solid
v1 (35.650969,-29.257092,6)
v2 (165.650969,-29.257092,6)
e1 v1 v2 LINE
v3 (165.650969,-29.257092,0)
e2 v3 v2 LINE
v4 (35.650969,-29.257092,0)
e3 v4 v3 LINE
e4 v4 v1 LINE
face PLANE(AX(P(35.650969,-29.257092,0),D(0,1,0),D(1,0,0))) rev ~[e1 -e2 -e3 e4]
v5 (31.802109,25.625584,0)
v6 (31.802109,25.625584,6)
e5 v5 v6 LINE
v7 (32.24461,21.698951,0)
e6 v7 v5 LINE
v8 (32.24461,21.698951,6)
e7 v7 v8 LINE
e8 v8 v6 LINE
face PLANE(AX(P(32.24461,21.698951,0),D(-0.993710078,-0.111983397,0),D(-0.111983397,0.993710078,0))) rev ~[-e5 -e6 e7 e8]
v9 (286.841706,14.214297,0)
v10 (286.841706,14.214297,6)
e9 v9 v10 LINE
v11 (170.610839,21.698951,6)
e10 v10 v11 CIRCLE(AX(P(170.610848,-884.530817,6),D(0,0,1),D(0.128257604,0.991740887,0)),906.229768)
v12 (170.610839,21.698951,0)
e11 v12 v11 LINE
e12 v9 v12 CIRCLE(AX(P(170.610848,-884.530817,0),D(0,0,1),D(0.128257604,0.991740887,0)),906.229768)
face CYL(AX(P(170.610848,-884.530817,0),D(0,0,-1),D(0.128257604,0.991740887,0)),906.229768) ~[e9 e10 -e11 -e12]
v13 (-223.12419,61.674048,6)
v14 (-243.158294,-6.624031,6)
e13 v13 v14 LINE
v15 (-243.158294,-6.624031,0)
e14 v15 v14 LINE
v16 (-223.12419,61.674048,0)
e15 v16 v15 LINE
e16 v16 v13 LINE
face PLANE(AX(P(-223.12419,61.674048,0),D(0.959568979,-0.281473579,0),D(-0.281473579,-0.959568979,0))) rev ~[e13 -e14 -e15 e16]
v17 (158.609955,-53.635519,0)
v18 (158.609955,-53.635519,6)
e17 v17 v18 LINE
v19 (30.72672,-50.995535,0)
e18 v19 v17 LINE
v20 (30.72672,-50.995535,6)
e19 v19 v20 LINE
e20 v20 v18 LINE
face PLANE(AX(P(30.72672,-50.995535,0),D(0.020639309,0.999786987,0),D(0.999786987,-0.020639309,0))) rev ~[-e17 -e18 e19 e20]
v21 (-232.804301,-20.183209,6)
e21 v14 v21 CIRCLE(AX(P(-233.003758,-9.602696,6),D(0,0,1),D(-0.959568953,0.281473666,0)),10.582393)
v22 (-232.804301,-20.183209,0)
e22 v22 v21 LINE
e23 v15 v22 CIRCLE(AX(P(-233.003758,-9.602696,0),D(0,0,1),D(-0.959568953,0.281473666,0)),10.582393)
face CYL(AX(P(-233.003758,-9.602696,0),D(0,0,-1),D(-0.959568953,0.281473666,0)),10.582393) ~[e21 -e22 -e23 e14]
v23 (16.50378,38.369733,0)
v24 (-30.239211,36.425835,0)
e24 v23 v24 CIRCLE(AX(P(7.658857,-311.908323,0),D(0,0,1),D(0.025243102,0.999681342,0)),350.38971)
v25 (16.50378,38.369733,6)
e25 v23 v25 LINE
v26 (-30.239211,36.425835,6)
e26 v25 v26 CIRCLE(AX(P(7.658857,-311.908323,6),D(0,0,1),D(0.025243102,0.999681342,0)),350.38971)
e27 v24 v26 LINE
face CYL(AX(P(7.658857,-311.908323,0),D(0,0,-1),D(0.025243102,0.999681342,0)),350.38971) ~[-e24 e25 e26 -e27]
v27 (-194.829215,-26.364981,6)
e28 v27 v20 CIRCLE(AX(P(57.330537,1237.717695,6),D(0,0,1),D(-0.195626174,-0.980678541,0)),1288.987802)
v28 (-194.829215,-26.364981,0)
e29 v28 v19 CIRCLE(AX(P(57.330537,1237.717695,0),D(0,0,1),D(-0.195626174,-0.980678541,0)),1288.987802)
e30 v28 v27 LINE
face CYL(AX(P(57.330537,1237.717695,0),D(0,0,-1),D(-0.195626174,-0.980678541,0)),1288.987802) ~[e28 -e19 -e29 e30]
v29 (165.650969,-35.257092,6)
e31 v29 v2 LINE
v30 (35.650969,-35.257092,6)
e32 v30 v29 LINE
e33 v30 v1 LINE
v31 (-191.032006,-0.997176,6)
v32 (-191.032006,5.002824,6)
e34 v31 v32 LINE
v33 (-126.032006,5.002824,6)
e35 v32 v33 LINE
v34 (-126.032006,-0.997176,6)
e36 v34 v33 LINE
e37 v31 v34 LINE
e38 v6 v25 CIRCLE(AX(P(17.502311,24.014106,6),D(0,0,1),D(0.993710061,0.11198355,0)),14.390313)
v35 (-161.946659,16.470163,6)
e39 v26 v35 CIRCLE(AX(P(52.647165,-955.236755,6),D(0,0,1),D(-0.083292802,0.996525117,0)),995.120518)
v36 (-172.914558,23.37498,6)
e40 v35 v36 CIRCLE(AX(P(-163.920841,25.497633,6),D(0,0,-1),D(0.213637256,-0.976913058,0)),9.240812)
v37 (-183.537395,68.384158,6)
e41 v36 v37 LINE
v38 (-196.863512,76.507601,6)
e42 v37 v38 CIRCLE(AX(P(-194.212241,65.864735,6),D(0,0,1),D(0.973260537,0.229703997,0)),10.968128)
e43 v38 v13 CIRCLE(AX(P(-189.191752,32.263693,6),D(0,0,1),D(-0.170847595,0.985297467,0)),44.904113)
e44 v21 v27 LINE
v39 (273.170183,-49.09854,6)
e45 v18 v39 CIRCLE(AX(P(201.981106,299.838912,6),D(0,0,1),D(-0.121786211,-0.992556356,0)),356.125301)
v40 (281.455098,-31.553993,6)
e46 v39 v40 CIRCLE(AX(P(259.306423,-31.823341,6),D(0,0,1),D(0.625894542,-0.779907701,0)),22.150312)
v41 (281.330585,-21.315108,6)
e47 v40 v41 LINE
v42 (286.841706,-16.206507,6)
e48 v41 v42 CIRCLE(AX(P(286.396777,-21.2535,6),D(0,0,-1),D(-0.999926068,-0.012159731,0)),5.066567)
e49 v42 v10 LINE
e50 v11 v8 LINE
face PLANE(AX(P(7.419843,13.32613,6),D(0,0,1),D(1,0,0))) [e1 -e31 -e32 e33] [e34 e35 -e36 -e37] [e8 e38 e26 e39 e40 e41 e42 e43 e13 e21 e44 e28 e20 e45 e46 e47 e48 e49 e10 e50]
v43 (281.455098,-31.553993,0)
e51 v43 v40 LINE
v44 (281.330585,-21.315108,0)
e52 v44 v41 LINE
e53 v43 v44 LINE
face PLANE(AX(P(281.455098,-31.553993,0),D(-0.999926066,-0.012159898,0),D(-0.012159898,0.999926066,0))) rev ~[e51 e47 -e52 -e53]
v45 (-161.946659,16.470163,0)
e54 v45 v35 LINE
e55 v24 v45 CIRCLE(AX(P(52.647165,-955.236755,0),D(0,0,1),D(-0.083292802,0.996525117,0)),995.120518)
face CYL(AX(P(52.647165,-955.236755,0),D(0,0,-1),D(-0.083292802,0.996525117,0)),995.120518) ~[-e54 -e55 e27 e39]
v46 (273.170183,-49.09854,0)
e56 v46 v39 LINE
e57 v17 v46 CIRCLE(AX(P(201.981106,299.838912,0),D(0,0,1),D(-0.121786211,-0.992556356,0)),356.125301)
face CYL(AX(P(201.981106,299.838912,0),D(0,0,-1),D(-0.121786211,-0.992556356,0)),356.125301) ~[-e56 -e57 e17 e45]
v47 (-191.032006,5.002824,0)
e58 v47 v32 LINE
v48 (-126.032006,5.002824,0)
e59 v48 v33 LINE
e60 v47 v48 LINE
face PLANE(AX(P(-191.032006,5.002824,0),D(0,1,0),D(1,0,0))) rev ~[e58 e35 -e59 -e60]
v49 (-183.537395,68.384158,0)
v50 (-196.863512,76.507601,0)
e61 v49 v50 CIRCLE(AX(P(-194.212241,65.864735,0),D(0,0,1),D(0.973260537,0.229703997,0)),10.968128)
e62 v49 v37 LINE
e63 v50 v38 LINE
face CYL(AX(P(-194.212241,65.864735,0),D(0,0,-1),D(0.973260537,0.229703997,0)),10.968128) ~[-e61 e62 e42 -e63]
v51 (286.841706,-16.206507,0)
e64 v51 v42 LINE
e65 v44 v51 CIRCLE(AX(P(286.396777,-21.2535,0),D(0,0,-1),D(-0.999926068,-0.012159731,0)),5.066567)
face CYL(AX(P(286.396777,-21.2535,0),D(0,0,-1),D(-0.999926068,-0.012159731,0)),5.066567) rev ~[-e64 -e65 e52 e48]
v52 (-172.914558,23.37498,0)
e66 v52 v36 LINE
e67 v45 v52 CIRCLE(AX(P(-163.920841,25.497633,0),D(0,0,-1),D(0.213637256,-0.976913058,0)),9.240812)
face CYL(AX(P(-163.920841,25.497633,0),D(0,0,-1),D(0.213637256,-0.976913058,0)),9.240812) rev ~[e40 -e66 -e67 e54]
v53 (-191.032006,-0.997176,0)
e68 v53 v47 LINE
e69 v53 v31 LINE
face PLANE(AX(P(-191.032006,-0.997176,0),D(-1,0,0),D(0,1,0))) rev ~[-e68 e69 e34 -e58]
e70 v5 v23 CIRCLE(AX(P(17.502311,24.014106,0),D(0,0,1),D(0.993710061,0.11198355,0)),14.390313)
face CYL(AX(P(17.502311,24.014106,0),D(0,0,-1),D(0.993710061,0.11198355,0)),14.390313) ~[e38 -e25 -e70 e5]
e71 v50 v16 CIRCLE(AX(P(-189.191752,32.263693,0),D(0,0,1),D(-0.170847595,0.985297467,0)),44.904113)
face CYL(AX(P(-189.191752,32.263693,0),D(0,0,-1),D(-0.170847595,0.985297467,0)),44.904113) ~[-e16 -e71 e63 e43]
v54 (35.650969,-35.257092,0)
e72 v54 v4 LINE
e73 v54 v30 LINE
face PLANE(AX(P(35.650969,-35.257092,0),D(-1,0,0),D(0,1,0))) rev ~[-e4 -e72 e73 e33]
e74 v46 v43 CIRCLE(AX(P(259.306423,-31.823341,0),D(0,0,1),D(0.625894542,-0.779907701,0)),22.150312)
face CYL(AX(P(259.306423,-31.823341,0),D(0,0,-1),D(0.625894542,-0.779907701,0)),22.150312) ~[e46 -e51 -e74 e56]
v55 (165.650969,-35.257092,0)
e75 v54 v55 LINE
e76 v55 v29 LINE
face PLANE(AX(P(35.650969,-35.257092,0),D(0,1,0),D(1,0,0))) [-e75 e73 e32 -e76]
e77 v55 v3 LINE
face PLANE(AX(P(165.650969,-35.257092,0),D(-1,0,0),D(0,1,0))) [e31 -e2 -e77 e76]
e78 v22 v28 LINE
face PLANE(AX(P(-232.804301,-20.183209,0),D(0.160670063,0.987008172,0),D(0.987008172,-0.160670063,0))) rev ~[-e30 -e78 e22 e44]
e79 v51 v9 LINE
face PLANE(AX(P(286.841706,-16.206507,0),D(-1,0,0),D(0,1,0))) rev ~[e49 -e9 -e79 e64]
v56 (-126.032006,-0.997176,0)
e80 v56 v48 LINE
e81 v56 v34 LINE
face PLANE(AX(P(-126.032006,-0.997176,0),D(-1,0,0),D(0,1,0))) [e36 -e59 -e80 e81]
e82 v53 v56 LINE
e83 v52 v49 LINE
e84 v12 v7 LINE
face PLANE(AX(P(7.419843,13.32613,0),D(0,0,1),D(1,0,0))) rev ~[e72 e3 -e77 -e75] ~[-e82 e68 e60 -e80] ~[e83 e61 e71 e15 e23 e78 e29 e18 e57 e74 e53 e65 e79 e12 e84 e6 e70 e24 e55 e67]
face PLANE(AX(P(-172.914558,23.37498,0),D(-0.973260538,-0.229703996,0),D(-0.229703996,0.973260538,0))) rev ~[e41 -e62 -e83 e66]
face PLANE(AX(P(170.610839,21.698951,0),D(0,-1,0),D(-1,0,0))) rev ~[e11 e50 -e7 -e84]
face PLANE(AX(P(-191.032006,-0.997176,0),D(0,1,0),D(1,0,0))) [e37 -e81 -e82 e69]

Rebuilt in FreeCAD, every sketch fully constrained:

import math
import FreeCAD as App
import Part
import Sketcher

V = App.Vector
Q = App.Units.Quantity


def add_polygon(sketch, points):
    """Adds a closed chain of lines whose ends are joined by coincident constraints."""
    first, n = sketch.GeometryCount, len(points)
    for a, b in zip(points, points[1:] + points[:1]):
        sketch.addGeometry(Part.LineSegment(App.Vector(*a, 0), App.Vector(*b, 0)), False)
    for i in range(n):
        sketch.addConstraint(Sketcher.Constraint("Coincident", first + i, 2, first + (i + 1) % n, 1))

doc = App.newDocument("Part")
body = doc.addObject("PartDesign::Body", "Body")

# Sketch on XY plane
sketch1 = body.newObject("Sketcher::SketchObject", "Sketch")
sketch1.AttachmentSupport = (doc.getObject("XY_Plane"), [""])
sketch1.MapMode = "FlatFace"
sketch1.addGeometry(Part.LineSegment(V(-172.914558, 23.37498, 0), V(-183.537395, 68.384158, 0)), False)  # 0
sketch1.addGeometry(Part.ArcOfCircle(Part.Circle(V(-194.212241, 65.864735, 0), V(0, 0, 1), 10.968128), math.radians(13.279645), math.radians(103.988375)), False)  # 1
sketch1.addGeometry(Part.ArcOfCircle(Part.Circle(V(-189.191752, 32.263693, 0), V(0, 0, 1), 44.904113), math.radians(99.837104), math.radians(139.083454)), False)  # 2
sketch1.addGeometry(Part.LineSegment(V(-223.12419, 61.674048, 0), V(-243.158294, -6.624031, 0)), False)  # 3
sketch1.addGeometry(Part.ArcOfCircle(Part.Circle(V(-233.003758, -9.602696, 0), V(0, 0, 1), 10.582393), math.radians(163.651823), math.radians(271.079977)), False)  # 4
sketch1.addGeometry(Part.LineSegment(V(-232.804301, -20.183209, 0), V(-194.829215, -26.364981, 0)), False)  # 5
sketch1.addGeometry(Part.ArcOfCircle(Part.Circle(V(57.330537, 1237.717695, 0), V(0, 0, 1), 1288.987802), math.radians(-101.281305), math.radians(-91.182629)), False)  # 6
sketch1.addGeometry(Part.LineSegment(V(30.72672, -50.995535, 0), V(158.609955, -53.635519, 0)), False)  # 7
sketch1.addGeometry(Part.ArcOfCircle(Part.Circle(V(201.981106, 299.838912, 0), V(0, 0, 1), 356.125301), math.radians(-96.995201), math.radians(-78.468949)), False)  # 8
sketch1.addGeometry(Part.ArcOfCircle(Part.Circle(V(259.306423, -31.823341, 0), V(0, 0, 1), 22.150312), math.radians(-51.252125), math.radians(0.696734)), False)  # 9
sketch1.addGeometry(Part.LineSegment(V(281.455098, -31.553993, 0), V(281.330585, -21.315108, 0)), False)  # 10
sketch1.addGeometry(Part.ArcOfCircle(Part.Circle(V(286.396777, -21.2535, 0), V(0, 0, 1), 5.066567), math.radians(84.961989), math.radians(180.696718)), False)  # 11
sketch1.addGeometry(Part.LineSegment(V(286.841706, -16.206507, 0), V(286.841706, 14.214297, 0)), False)  # 12
sketch1.addGeometry(Part.ArcOfCircle(Part.Circle(V(170.610848, -884.530817, 0), V(0, 0, 1), 906.229768), math.radians(82.631083), math.radians(90.000001)), False)  # 13
sketch1.addGeometry(Part.LineSegment(V(170.610839, 21.698951, 0), V(32.24461, 21.698951, 0)), False)  # 14
sketch1.addGeometry(Part.LineSegment(V(32.24461, 21.698951, 0), V(31.802109, 25.625584, 0)), False)  # 15
sketch1.addGeometry(Part.ArcOfCircle(Part.Circle(V(17.502311, 24.014106, 0), V(0, 0, 1), 14.390313), math.radians(6.429671), math.radians(93.978899)), False)  # 16
sketch1.addGeometry(Part.ArcOfCircle(Part.Circle(V(7.658857, -311.908323, 0), V(0, 0, 1), 350.38971), math.radians(88.553523), math.radians(96.209245)), False)  # 17
sketch1.addGeometry(Part.ArcOfCircle(Part.Circle(V(52.647165, -955.236755, 0), V(0, 0, 1), 995.120518), math.radians(94.777861), math.radians(102.453433)), False)  # 18
sketch1.addGeometry(Part.ArcOfCircle(Part.Circle(V(-163.920841, 25.497633, 0), V(0, 0, 1), 9.240812), math.radians(-166.720345), math.radians(-77.66441)), False)  # 19
add_polygon(sketch1, [(165.650969, -35.257092), (35.650969, -35.257092), (35.650969, -29.257092), (165.650969, -29.257092)])  # lines 20-23
add_polygon(sketch1, [(-126.032006, -0.997176), (-191.032006, -0.997176), (-191.032006, 5.002824), (-126.032006, 5.002824)])  # lines 24-27
sketch1.addConstraint([
    Sketcher.Constraint("Coincident", 0, 2, 1, 1),
    Sketcher.Constraint("Coincident", 1, 2, 2, 1),
    Sketcher.Constraint("Coincident", 2, 2, 3, 1),
    Sketcher.Constraint("Coincident", 3, 2, 4, 1),
    Sketcher.Constraint("Coincident", 4, 2, 5, 1),
    Sketcher.Constraint("Coincident", 5, 2, 6, 1),
    Sketcher.Constraint("Coincident", 6, 2, 7, 1),
    Sketcher.Constraint("Coincident", 7, 2, 8, 1),
    Sketcher.Constraint("Coincident", 8, 2, 9, 1),
    Sketcher.Constraint("Coincident", 9, 2, 10, 1),
    Sketcher.Constraint("Coincident", 10, 2, 11, 2),
    Sketcher.Constraint("Coincident", 11, 1, 12, 1),
    Sketcher.Constraint("Coincident", 12, 2, 13, 1),
    Sketcher.Constraint("Coincident", 13, 2, 14, 1),
    Sketcher.Constraint("Coincident", 14, 2, 15, 1),
    Sketcher.Constraint("Coincident", 15, 2, 16, 1),
    Sketcher.Constraint("Coincident", 16, 2, 17, 1),
    Sketcher.Constraint("Coincident", 17, 2, 18, 1),
    Sketcher.Constraint("Coincident", 18, 2, 19, 2),
    Sketcher.Constraint("Coincident", 19, 1, 0, 1),
    Sketcher.Constraint("Vertical", 12),
    Sketcher.Constraint("Horizontal", 14),
    Sketcher.Constraint("Horizontal", 20),
    Sketcher.Constraint("Vertical", 21),
    Sketcher.Constraint("Horizontal", 22),
    Sketcher.Constraint("Vertical", 23),
    Sketcher.Constraint("Horizontal", 24),
    Sketcher.Constraint("Vertical", 25),
    Sketcher.Constraint("Horizontal", 26),
    Sketcher.Constraint("Vertical", 27),
    Sketcher.Constraint("DistanceX", 20, 2, 20, 1, Q("130 mm")),
    Sketcher.Constraint("DistanceX", 24, 2, 24, 1, Q("65 mm")),
    Sketcher.Constraint("DistanceY", 21, 1, 21, 2, Q("6 mm")),
    Sketcher.Constraint("DistanceY", 25, 1, 25, 2, Q("6 mm")),
    Sketcher.Constraint("Radius", 6, Q("1288.987802 mm")),
    Sketcher.Constraint("Radius", 8, Q("356.125301 mm")),
    Sketcher.Constraint("Radius", 17, Q("350.38971 mm")),
    Sketcher.Constraint("Radius", 19, Q("9.240812 mm")),
    Sketcher.Constraint("Radius", 1, Q("10.968128 mm")),
    Sketcher.Constraint("Radius", 2, Q("44.904113 mm")),
    Sketcher.Constraint("Radius", 4, Q("10.582393 mm")),
    Sketcher.Constraint("Radius", 9, Q("22.150312 mm")),
    Sketcher.Constraint("Radius", 11, Q("5.066567 mm")),
    Sketcher.Constraint("Radius", 13, Q("906.229768 mm")),
    Sketcher.Constraint("Radius", 16, Q("14.390313 mm")),
    Sketcher.Constraint("Radius", 18, Q("995.120518 mm")),
    Sketcher.Constraint("DistanceX", 14, 2, 14, 1, Q("138.366229 mm")),
    Sketcher.Constraint("DistanceY", 11, 3, -1, 1, Q("21.2535 mm")),
    Sketcher.Constraint("DistanceY", -1, 1, 1, 2, Q("76.507601 mm")),
    Sketcher.Constraint("DistanceX", 4, 2, -1, 1, Q("232.804301 mm")),
    Sketcher.Constraint("DistanceX", -1, 1, 9, 2, Q("281.455098 mm")),
    Sketcher.Constraint("DistanceX", 2, 3, 13, 3, Q("359.8026 mm")),
    Sketcher.Constraint("DistanceY", 4, 3, 16, 3, Q("33.616802 mm")),
    Sketcher.Constraint("DistanceX", 1, 3, 19, 3, Q("30.2914 mm")),
    Sketcher.Constraint("DistanceY", 4, 2, 2, 3, Q("52.446902 mm")),
    Sketcher.Constraint("DistanceX", 17, 3, 7, 2, Q("150.951098 mm")),
    Sketcher.Constraint("DistanceY", 8, 2, 9, 3, Q("17.275199 mm")),
    Sketcher.Constraint("DistanceY", 10, 2, 11, 1, Q("5.108601 mm")),
    Sketcher.Constraint("DistanceX", 16, 3, 14, 2, Q("14.742299 mm")),
    Sketcher.Constraint("DistanceX", 15, 2, 14, 2, Q("0.442501 mm")),
    Sketcher.Constraint("DistanceY", 17, 2, 16, 2, Q("1.943898 mm")),
    Sketcher.Constraint("DistanceX", 19, 1, 18, 2, Q("10.967899 mm")),
    Sketcher.Constraint("DistanceY", 9, 2, 22, 2, Q("2.296901 mm")),
    Sketcher.Constraint("Distance", 3, Q("71.175789 mm")),
    Sketcher.Constraint("Distance", 7, Q("127.910482 mm")),
    Sketcher.Constraint("DistanceY", 12, 1, 12, 2, Q("30.420804 mm")),
    Sketcher.Constraint("DistanceX", 1, 3, -1, 1, Q("194.212241 mm")),
    Sketcher.Constraint("DistanceX", 4, 3, -1, 1, Q("233.003758 mm")),
    Sketcher.Constraint("DistanceY", 9, 3, -1, 1, Q("31.823341 mm")),
    Sketcher.Constraint("DistanceX", -1, 1, 16, 3, Q("17.502311 mm")),
    Sketcher.Constraint("DistanceY", -1, 1, 0, 2, Q("68.384158 mm")),
    Sketcher.Constraint("DistanceX", 2, 2, -1, 1, Q("223.12419 mm")),
    Sketcher.Constraint("DistanceY", -1, 1, 2, 2, Q("61.674048 mm")),
    Sketcher.Constraint("DistanceY", 3, 2, -1, 1, Q("6.624031 mm")),
    Sketcher.Constraint("DistanceY", 5, 2, -1, 1, Q("26.364981 mm")),
    Sketcher.Constraint("DistanceY", 7, 2, -1, 1, Q("53.635519 mm")),
    Sketcher.Constraint("DistanceY", -1, 1, 13, 2, Q("21.698951 mm")),
    Sketcher.Constraint("DistanceX", -1, 1, 16, 2, Q("16.50378 mm")),
    Sketcher.Constraint("DistanceX", 19, 1, -1, 1, Q("172.914558 mm")),
    Sketcher.Constraint("DistanceY", -1, 1, 19, 1, Q("23.37498 mm")),
    Sketcher.Constraint("DistanceX", -1, 1, 20, 2, Q("35.650969 mm")),
    Sketcher.Constraint("DistanceY", 21, 2, -1, 1, Q("29.257092 mm")),
    Sketcher.Constraint("DistanceX", 1, 3, 6, 3, Q("251.542778 mm")),
    Sketcher.Constraint("DistanceY", 1, 3, 6, 3, Q("1171.85296 mm")),
    Sketcher.Constraint("DistanceX", 2, 3, 8, 3, Q("391.172858 mm")),
    Sketcher.Constraint("DistanceX", 8, 3, 11, 3, Q("84.415671 mm")),
    Sketcher.Constraint("DistanceX", 5, 2, 24, 2, Q("3.797209 mm")),
    Sketcher.Constraint("DistanceY", 24, 2, 2, 3, Q("33.260869 mm")),
])
pad1 = body.newObject("PartDesign::Pad", "Pad")
pad1.Profile = sketch1
pad1.Length = 6

doc.recompute()
